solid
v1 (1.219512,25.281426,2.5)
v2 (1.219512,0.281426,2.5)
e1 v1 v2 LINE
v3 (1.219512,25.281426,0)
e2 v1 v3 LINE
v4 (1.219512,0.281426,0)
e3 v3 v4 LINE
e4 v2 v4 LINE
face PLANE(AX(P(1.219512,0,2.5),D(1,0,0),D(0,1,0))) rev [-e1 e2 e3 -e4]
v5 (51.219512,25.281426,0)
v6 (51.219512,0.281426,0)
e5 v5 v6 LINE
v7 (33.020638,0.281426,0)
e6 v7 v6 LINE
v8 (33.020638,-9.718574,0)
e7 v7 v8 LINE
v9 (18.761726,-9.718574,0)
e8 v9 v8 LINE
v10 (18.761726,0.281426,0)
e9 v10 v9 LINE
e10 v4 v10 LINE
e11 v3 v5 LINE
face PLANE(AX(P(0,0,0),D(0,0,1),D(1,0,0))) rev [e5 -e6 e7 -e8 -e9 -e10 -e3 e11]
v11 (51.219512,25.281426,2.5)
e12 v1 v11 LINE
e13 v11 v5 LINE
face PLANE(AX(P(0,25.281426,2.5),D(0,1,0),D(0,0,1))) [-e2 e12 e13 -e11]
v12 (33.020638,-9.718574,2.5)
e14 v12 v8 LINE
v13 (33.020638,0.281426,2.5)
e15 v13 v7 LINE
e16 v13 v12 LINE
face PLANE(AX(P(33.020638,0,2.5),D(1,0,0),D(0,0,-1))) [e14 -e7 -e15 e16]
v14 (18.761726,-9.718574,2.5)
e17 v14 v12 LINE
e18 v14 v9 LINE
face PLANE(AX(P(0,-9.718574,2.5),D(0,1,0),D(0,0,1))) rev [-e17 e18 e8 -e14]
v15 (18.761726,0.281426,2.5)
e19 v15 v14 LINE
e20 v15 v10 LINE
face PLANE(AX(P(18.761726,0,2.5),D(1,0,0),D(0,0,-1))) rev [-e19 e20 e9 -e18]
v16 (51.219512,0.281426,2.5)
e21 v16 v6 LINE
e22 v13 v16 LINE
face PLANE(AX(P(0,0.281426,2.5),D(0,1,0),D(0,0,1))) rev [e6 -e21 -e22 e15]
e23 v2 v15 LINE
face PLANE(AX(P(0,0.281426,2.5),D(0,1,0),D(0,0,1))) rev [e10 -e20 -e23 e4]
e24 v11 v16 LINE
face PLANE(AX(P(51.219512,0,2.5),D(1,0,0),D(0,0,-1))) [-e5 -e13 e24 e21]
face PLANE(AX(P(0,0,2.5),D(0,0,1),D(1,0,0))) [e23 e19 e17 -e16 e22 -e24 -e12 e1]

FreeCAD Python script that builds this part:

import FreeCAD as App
import Part
import Sketcher
from FreeCAD import Vector
Q = App.Units.Quantity

doc = App.newDocument("Part")
body = doc.addObject("PartDesign::Body", "Body")

# Sketch on XY plane
sketch1 = doc.addObject("Sketcher::SketchObject", "Sketch")
body.addObject(sketch1)
sketch1.AttachmentSupport = (doc.XY_Plane, [""])
sketch1.MapMode = "FlatFace"
sketch1.addGeometry([
    Part.LineSegment(Vector(1.219512, 25.281426, 0), Vector(1.219512, 0.281426, 0)),  # 0
    Part.LineSegment(Vector(1.219512, 0.281426, 0), Vector(18.761726, 0.281426, 0)),  # 1
    Part.LineSegment(Vector(18.761726, 0.281426, 0), Vector(18.761726, -9.718574, 0)),  # 2
    Part.LineSegment(Vector(18.761726, -9.718574, 0), Vector(33.020638, -9.718574, 0)),  # 3
    Part.LineSegment(Vector(33.020638, -9.718574, 0), Vector(33.020638, 0.281426, 0)),  # 4
    Part.LineSegment(Vector(33.020638, 0.281426, 0), Vector(51.219512, 0.281426, 0)),  # 5
    Part.LineSegment(Vector(51.219512, 0.281426, 0), Vector(51.219512, 25.281426, 0)),  # 6
    Part.LineSegment(Vector(51.219512, 25.281426, 0), Vector(1.219512, 25.281426, 0)),  # 7
], False)
sketch1.addConstraint([
    Sketcher.Constraint("Coincident", 0, 2, 1, 1),
    Sketcher.Constraint("Coincident", 1, 2, 2, 1),
    Sketcher.Constraint("Coincident", 2, 2, 3, 1),
    Sketcher.Constraint("Coincident", 3, 2, 4, 1),
    Sketcher.Constraint("Coincident", 4, 2, 5, 1),
    Sketcher.Constraint("Coincident", 5, 2, 6, 1),
    Sketcher.Constraint("Coincident", 6, 2, 7, 1),
    Sketcher.Constraint("Coincident", 7, 2, 0, 1),
    Sketcher.Constraint("Vertical", 0),
    Sketcher.Constraint("Horizontal", 1),
    Sketcher.Constraint("Vertical", 2),
    Sketcher.Constraint("Horizontal", 3),
    Sketcher.Constraint("Vertical", 4),
    Sketcher.Constraint("Horizontal", 5),
    Sketcher.Constraint("Vertical", 6),
    Sketcher.Constraint("Horizontal", 7),
    Sketcher.Constraint("Horizontal", 1, 2, 4, 2),
    Sketcher.Constraint("DistanceX", 7, 2, 7, 1, Q("50 mm")),
    Sketcher.Constraint("DistanceY", 0, 2, 0, 1, Q("25 mm")),
    Sketcher.Constraint("DistanceY", 2, 2, 2, 1, Q("10 mm")),
    Sketcher.Constraint("DistanceX", 3, 1, 3, 2, Q("14.258912 mm")),
    Sketcher.Constraint("DistanceX", 1, 1, 1, 2, Q("17.542214 mm")),
    Sketcher.Constraint("DistanceX", -1, 1, 0, 2, Q("1.219512 mm")),
    Sketcher.Constraint("DistanceY", -1, 1, 0, 2, Q("0.281426 mm")),
])
pad1 = doc.addObject("PartDesign::Pad", "Pad")
body.addObject(pad1)
pad1.Profile = sketch1
pad1.Length = 2.5

doc.recompute()
